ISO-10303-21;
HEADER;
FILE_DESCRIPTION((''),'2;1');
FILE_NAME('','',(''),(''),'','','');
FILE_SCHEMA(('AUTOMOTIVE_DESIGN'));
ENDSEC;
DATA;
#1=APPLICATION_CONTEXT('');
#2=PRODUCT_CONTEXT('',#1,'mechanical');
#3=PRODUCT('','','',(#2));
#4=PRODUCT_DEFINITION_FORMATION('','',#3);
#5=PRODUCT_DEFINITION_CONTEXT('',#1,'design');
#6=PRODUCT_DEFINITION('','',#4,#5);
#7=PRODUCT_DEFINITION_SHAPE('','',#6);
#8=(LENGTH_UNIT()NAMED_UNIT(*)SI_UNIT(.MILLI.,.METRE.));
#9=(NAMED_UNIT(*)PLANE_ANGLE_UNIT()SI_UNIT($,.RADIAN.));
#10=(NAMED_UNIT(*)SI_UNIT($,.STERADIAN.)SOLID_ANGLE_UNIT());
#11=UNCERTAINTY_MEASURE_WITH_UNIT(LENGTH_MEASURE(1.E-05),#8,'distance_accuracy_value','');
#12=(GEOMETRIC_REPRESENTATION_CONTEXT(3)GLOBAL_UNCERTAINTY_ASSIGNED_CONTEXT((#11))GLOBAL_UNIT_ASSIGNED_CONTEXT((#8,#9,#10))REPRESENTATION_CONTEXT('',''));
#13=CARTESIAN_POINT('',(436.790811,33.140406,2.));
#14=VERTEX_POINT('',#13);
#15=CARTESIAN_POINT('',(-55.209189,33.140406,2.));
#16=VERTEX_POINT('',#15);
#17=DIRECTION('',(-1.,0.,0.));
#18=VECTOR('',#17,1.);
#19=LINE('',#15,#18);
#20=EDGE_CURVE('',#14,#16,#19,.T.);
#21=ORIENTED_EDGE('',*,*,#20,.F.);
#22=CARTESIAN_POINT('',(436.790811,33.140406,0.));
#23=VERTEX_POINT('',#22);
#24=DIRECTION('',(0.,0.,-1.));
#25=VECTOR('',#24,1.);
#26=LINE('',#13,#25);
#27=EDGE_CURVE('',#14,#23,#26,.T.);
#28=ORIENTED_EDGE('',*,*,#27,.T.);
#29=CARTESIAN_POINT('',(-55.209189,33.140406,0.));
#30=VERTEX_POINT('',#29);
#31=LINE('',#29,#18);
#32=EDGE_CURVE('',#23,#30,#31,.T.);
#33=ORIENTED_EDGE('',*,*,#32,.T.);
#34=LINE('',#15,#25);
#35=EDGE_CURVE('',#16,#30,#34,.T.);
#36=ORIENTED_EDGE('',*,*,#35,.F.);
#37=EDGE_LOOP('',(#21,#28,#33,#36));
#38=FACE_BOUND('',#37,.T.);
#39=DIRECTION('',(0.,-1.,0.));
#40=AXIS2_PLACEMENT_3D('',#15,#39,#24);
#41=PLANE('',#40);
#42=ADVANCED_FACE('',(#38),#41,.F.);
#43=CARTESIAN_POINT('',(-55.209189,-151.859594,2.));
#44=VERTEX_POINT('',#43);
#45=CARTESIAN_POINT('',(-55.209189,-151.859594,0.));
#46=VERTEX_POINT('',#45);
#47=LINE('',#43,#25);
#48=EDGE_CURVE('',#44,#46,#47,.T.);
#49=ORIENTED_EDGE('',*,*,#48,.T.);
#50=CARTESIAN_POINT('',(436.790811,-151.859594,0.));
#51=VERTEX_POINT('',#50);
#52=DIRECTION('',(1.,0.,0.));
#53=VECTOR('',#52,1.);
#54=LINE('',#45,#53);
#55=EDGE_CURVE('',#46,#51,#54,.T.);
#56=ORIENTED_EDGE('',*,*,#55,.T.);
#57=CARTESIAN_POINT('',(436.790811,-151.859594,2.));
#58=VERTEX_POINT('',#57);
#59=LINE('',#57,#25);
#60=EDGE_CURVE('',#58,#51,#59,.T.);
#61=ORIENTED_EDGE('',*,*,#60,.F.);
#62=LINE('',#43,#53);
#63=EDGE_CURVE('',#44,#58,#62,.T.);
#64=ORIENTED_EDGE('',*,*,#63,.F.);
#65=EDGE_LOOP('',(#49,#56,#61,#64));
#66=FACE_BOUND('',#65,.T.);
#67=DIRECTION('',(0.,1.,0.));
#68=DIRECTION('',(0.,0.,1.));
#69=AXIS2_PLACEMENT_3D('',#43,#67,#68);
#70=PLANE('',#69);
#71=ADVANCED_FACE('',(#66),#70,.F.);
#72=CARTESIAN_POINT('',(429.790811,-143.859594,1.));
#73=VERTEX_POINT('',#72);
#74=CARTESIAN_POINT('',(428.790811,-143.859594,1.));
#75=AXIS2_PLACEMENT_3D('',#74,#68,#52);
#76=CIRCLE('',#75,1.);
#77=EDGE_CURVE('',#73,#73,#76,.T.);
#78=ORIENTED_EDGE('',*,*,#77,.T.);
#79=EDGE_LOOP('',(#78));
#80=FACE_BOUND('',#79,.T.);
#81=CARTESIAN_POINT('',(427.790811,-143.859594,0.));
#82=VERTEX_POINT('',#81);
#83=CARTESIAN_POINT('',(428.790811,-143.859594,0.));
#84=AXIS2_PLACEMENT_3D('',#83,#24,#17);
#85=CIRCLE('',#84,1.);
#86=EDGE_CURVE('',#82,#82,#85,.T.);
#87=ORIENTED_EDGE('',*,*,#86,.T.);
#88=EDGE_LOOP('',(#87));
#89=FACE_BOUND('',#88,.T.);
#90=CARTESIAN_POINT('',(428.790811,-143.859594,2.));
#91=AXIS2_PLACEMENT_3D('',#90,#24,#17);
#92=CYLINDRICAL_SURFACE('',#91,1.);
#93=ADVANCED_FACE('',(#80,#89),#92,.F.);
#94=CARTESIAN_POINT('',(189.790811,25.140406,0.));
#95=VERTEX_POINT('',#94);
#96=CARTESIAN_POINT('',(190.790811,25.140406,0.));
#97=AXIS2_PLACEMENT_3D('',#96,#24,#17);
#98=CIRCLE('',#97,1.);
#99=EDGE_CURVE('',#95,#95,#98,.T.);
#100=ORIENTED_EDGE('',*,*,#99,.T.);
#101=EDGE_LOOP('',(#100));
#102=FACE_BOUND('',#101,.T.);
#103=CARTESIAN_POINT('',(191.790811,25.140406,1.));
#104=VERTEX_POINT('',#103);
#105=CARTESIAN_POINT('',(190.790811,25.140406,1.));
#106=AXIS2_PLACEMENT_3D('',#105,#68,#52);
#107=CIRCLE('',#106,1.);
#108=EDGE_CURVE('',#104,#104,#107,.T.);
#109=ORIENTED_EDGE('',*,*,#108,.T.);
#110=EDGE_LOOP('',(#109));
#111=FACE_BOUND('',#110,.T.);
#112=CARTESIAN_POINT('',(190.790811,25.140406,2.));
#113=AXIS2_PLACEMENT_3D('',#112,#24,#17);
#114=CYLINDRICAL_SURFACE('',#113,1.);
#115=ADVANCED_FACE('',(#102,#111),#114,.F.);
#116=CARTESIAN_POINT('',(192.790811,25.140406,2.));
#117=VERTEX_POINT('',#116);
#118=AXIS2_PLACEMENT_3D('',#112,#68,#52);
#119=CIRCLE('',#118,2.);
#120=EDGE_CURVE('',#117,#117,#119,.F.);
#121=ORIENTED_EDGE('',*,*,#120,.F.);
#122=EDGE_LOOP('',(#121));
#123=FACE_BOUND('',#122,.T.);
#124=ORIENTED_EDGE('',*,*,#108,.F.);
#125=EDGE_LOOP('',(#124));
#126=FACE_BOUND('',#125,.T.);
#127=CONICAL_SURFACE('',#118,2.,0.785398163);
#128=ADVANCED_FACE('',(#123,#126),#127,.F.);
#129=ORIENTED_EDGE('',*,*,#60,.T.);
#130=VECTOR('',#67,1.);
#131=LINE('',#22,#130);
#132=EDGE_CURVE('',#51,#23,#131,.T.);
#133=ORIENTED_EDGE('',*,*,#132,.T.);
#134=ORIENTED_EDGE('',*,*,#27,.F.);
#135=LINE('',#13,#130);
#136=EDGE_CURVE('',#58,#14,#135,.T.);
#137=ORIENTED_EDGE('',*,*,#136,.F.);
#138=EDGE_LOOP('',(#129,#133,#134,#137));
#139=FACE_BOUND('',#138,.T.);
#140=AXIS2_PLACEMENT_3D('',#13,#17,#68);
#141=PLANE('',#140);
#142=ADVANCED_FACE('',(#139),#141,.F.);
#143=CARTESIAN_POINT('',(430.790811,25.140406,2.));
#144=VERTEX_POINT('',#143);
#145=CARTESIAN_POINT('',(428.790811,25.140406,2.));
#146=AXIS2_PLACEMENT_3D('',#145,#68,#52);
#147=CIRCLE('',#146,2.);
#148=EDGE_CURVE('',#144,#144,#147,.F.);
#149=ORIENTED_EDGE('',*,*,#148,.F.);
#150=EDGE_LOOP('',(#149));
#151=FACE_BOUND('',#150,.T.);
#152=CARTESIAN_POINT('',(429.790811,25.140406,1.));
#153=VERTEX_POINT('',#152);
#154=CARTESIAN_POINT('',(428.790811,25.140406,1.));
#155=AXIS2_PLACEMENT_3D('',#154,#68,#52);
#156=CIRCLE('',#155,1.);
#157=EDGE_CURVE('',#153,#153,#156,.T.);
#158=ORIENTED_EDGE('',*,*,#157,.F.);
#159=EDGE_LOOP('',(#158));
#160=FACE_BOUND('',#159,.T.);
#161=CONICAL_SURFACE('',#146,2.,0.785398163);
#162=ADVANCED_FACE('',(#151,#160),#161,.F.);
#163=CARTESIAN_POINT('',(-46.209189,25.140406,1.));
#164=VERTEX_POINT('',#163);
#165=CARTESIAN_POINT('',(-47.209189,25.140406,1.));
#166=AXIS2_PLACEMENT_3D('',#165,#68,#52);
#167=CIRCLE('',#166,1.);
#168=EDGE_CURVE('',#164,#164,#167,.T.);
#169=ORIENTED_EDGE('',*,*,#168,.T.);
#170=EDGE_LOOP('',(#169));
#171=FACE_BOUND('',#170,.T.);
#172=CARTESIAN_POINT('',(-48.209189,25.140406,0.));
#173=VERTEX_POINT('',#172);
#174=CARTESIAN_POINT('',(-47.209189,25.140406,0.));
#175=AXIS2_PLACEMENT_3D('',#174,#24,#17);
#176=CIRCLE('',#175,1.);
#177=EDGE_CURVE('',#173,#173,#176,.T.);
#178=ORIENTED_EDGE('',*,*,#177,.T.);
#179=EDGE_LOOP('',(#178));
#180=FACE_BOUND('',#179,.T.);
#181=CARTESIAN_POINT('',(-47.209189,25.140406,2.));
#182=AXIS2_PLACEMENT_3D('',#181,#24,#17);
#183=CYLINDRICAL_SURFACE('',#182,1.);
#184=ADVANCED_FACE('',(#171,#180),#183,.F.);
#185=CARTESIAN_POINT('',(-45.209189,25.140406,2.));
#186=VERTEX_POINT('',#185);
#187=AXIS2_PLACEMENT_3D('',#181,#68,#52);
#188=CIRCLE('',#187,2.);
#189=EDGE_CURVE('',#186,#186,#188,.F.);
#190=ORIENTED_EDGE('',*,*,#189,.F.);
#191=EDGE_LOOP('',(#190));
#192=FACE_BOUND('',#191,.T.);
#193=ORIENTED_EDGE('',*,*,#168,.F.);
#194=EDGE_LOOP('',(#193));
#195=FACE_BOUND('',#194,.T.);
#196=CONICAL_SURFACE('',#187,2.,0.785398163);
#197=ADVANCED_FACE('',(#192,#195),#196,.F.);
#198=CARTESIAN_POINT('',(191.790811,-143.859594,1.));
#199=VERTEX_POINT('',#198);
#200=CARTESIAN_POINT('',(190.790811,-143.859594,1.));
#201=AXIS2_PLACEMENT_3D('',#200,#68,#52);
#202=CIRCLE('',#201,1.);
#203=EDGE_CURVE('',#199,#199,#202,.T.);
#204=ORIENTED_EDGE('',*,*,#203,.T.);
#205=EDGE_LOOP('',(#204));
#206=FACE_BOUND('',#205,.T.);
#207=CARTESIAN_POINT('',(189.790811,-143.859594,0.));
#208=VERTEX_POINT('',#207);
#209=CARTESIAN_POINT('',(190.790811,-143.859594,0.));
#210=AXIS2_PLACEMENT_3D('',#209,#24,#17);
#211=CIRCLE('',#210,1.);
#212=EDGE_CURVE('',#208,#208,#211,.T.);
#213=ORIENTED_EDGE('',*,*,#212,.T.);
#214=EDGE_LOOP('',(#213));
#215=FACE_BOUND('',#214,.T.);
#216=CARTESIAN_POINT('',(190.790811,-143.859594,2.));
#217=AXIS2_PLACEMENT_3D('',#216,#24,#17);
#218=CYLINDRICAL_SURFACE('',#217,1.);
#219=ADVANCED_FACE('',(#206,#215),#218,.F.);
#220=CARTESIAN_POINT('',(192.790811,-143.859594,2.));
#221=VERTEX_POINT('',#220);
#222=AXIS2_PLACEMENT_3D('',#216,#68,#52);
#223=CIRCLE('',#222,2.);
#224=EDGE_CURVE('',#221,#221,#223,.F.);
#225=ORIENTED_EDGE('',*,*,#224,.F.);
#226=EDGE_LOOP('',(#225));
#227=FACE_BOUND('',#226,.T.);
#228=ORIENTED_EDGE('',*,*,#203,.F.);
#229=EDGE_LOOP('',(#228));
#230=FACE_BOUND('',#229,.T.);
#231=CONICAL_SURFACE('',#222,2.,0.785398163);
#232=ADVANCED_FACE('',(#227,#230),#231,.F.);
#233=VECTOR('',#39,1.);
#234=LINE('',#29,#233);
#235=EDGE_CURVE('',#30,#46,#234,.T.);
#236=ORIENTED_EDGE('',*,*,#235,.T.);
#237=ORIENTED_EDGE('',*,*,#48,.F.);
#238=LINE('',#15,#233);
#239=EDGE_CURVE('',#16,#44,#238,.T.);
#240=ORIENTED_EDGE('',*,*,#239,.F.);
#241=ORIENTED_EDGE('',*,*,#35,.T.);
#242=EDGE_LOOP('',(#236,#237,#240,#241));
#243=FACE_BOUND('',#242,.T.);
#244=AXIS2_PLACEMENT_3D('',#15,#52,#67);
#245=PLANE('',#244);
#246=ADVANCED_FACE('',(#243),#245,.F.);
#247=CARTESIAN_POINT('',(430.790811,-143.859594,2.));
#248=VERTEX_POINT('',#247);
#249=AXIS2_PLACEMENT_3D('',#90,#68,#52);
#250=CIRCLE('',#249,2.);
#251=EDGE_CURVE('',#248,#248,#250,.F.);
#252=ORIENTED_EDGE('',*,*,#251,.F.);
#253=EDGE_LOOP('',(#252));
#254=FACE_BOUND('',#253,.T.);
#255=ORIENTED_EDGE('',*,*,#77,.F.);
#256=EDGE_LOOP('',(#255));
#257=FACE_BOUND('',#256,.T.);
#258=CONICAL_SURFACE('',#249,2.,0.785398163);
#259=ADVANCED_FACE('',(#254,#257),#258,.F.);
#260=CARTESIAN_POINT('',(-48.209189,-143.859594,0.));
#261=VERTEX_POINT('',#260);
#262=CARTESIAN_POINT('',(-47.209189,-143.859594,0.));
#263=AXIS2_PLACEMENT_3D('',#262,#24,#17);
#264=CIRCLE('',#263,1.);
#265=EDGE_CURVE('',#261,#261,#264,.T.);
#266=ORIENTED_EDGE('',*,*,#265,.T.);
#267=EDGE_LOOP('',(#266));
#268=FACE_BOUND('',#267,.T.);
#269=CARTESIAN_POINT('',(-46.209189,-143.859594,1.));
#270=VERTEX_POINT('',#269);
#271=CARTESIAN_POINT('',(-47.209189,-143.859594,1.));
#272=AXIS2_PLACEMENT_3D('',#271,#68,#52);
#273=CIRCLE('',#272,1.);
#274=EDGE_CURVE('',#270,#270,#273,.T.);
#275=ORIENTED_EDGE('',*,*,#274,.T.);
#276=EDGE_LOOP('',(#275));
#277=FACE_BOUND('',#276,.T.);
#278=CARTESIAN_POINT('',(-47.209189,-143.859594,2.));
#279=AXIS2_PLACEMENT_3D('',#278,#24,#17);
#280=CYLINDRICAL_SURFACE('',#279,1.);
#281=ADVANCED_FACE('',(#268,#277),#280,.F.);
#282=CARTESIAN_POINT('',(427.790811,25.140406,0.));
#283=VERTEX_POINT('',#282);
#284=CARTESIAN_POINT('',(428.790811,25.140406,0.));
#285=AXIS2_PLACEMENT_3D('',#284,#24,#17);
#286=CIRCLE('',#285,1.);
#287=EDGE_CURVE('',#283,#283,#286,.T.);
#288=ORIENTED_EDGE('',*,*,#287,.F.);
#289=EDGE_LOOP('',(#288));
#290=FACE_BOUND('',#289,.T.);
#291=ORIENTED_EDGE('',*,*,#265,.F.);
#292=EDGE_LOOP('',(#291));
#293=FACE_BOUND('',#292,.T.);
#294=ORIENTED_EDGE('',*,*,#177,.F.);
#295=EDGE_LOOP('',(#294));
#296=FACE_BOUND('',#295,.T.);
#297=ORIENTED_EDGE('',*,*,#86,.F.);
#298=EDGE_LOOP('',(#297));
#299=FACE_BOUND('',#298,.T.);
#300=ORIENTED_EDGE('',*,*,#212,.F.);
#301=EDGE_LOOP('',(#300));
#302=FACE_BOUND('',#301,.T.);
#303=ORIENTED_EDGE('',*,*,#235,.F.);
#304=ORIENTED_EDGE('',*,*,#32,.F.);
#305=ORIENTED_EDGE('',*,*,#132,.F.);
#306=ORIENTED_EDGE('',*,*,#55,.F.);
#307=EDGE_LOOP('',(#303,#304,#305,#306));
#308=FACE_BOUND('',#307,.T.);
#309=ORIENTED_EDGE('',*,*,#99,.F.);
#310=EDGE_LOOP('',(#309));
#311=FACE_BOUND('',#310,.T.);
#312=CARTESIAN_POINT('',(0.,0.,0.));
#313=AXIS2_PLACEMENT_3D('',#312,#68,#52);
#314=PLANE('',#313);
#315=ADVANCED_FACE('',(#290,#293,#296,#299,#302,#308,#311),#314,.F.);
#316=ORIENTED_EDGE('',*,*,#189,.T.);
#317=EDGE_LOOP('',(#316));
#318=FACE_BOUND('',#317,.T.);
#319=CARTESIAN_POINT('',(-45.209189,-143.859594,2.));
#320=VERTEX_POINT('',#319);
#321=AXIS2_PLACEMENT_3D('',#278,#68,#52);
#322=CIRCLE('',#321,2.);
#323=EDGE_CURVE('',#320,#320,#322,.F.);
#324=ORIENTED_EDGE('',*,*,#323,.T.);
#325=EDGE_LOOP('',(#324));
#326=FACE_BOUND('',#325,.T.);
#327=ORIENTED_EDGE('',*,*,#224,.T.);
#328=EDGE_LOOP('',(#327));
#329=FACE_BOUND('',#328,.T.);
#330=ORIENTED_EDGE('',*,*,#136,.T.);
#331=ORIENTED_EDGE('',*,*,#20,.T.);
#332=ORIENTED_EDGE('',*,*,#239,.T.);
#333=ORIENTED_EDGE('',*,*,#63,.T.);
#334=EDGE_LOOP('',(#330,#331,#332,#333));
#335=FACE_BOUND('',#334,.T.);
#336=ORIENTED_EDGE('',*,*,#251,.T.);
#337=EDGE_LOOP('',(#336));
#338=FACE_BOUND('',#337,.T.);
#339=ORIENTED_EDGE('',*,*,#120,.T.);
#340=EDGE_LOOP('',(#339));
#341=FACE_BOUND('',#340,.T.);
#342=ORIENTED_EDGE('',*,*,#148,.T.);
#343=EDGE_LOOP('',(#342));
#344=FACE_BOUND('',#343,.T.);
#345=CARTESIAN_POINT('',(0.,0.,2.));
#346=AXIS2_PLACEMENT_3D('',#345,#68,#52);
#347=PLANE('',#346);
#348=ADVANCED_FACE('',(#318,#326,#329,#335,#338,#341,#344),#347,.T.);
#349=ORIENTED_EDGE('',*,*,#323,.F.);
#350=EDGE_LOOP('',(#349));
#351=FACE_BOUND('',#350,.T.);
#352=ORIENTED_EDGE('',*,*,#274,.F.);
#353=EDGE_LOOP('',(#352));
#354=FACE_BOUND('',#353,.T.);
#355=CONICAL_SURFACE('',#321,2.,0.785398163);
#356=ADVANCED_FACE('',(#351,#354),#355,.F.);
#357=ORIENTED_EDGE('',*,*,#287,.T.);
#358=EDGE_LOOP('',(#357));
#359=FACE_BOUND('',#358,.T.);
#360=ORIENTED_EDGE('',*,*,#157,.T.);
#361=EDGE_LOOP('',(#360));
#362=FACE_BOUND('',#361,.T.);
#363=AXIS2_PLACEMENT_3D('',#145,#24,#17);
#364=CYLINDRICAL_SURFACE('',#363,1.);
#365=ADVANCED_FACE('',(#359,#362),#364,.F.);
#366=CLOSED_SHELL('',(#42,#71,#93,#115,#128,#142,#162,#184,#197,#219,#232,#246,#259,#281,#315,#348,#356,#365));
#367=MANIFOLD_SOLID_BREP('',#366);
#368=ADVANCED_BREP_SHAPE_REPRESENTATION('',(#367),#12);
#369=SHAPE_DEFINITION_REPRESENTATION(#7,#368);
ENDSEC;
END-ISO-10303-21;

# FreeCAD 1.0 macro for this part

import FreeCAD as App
import Part
import Sketcher

V = App.Vector


def edges_at(feature, points):
    """Names of the edges that pass closest to the given points."""
    edges = feature.Shape.Edges
    near = lambda p: min(range(len(edges)), key=lambda i: edges[i].distToShape(Part.Vertex(*p))[0])
    return sorted({f"Edge{near(p) + 1}" for p in points})

doc = App.newDocument("Part")
params = doc.addObject("Spreadsheet::Sheet", "Params")
for row, (alias, value) in enumerate([
    ("sketch1_width", "492 mm"),
    ("sketch1_height", "185 mm"),
    ("pad1_length", "2 mm"),
    ("sketch2_diameter", "2 mm"),
    ("chamfer_size", "1 mm"),
], start=1):
    params.set(f"A{row}", alias)
    params.set(f"B{row}", "=" + value)
    params.setAlias(f"B{row}", alias)

body = doc.addObject("PartDesign::Body", "Body")

# Sketch on XY plane
sketch1 = body.newObject("Sketcher::SketchObject", "Sketch")
sketch1.AttachmentSupport = (doc.getObject("XY_Plane"), [""])
sketch1.MapMode = "FlatFace"
sketch1.addGeometry([
    Part.LineSegment(V(-55, 33, 0), V(-55, -152, 0)),
    Part.LineSegment(V(-55, -152, 0), V(437, -152, 0)),
    Part.LineSegment(V(437, -152, 0), V(437, 33, 0)),
    Part.LineSegment(V(437, 33, 0), V(-55, 33, 0)),
], False)
sketch1.addConstraint([
    Sketcher.Constraint("Coincident", 0, 2, 1, 1),
    Sketcher.Constraint("Coincident", 1, 2, 2, 1),
    Sketcher.Constraint("Coincident", 2, 2, 3, 1),
    Sketcher.Constraint("Coincident", 3, 2, 0, 1),
    Sketcher.Constraint("Vertical", 0),
    Sketcher.Constraint("Horizontal", 1),
    Sketcher.Constraint("Vertical", 2),
    Sketcher.Constraint("Horizontal", 3),
    Sketcher.Constraint("DistanceX", 1, 1, 1, 2, 492.0),
    Sketcher.Constraint("DistanceY", 0, 2, 0, 1, 185.0),
    Sketcher.Constraint("DistanceX", 0, 2, -1, 1, 55.209189),
    Sketcher.Constraint("DistanceY", 0, 2, -1, 1, 151.859594),
])
sketch1.setExpression("Constraints[8]", "Params.sketch1_width")
sketch1.setExpression("Constraints[9]", "Params.sketch1_height")
pad1 = body.newObject("PartDesign::Pad", "Pad")
pad1.Profile = sketch1
pad1.setExpression("Length", "Params.pad1_length")

# Sketch on XY plane
sketch2 = body.newObject("Sketcher::SketchObject", "Sketch001")
sketch2.AttachmentSupport = (doc.getObject("XY_Plane"), [""])
sketch2.MapMode = "FlatFace"
sketch2.addGeometry([
    Part.Circle(V(-47.2, 25.1, 0), V(0, 0, 1), 1),  # 0
    Part.Circle(V(190.8, 25.1, 0), V(0, 0, 1), 1),  # 1
    Part.Circle(V(428.8, 25.1, 0), V(0, 0, 1), 1),  # 2
    Part.Circle(V(-47.2, -143.9, 0), V(0, 0, 1), 1),  # 3
    Part.Circle(V(190.8, -143.9, 0), V(0, 0, 1), 1),  # 4
    Part.Circle(V(428.8, -143.9, 0), V(0, 0, 1), 1),  # 5
], False)
sketch2.addConstraint([
    Sketcher.Constraint("Equal", 0, 1),
    Sketcher.Constraint("Equal", 1, 2),
    Sketcher.Constraint("Equal", 2, 3),
    Sketcher.Constraint("Equal", 3, 4),
    Sketcher.Constraint("Equal", 4, 5),
    Sketcher.Constraint("Horizontal", 0, 3, 1, 3),
    Sketcher.Constraint("Horizontal", 1, 3, 2, 3),
    Sketcher.Constraint("Horizontal", 3, 3, 4, 3),
    Sketcher.Constraint("Horizontal", 4, 3, 5, 3),
    Sketcher.Constraint("Vertical", 0, 3, 3, 3),
    Sketcher.Constraint("Vertical", 1, 3, 4, 3),
    Sketcher.Constraint("Vertical", 2, 3, 5, 3),
    Sketcher.Constraint("Diameter", 0, 2.0),
    Sketcher.Constraint("DistanceX", 0, 3, 1, 3, 238.0),
    Sketcher.Constraint("DistanceX", 1, 3, 2, 3, 238.0),
    Sketcher.Constraint("DistanceY", 3, 3, 0, 3, 169.0),
    Sketcher.Constraint("DistanceX", 0, 3, -1, 1, 47.209189),
    Sketcher.Constraint("DistanceY", -1, 1, 0, 3, 25.140406),
])
sketch2.setExpression("Constraints[12]", "Params.sketch2_diameter")
pocket1 = body.newObject("PartDesign::Pocket", "Pocket")
pocket1.Profile = sketch2
pocket1.Type = "ThroughAll"
pocket1.Reversed = True
doc.recompute()

chamfer = body.newObject("PartDesign::Chamfer", "Chamfer")
chamfer.Base = (pocket1, edges_at(pocket1, [
    (-46.209, 25.14, 2),
    (191.791, 25.14, 2),
    (429.791, 25.14, 2),
    (-46.209, -143.86, 2),
    (191.791, -143.86, 2),
    (429.791, -143.86, 2),
]))
chamfer.setExpression("Size", "Params.chamfer_size")

doc.recompute()
